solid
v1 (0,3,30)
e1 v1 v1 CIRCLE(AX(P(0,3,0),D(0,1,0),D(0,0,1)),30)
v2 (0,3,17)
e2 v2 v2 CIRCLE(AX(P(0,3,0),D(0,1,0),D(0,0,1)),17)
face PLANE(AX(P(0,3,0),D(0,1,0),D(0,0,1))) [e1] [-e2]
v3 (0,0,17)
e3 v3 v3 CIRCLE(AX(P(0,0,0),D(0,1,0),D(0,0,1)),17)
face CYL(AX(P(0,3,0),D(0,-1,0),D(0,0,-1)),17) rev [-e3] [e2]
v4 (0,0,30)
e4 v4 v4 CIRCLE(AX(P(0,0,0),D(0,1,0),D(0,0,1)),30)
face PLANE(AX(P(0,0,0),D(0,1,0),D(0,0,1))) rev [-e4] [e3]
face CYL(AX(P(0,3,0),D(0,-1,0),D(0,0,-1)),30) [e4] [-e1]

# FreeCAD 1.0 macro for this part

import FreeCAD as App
import Part
import Sketcher

V = App.Vector

doc = App.newDocument("Part")
body = doc.addObject("PartDesign::Body", "Body")

sketch1 = body.newObject("Sketcher::SketchObject", "Sketch")
sketch1.AttachmentSupport = (doc.getObject("XZ_Plane"), [""])
sketch1.MapMode = "FlatFace"
sketch1.addGeometry([
    Part.Circle(V(0, 0, 0), V(0, 0, 1), 30),
    Part.Circle(V(0, 0, 0), V(0, 0, 1), 17),
], False)
sketch1.addConstraint([
    Sketcher.Constraint("Coincident", 0, 3, -1, 1),
    Sketcher.Constraint("Coincident", 1, 3, -1, 1),
    Sketcher.Constraint("Diameter", 0, 60.0),
    Sketcher.Constraint("Diameter", 1, 34.0),
])
pad1 = body.newObject("PartDesign::Pad", "Pad")
pad1.Profile = sketch1
pad1.Length = 3
pad1.Reversed = True

doc.recompute()
